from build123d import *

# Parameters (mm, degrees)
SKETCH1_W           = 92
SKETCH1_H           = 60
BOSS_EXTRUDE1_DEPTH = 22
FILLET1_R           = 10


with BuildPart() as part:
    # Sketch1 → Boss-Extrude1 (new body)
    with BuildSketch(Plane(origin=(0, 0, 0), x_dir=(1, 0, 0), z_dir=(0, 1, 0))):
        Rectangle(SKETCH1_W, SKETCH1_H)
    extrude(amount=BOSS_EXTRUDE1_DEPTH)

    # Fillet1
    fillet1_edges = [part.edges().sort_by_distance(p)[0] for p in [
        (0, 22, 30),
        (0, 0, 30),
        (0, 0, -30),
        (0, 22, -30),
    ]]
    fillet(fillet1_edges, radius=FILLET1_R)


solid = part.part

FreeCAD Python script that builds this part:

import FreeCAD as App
import Part
import Sketcher


def edges_at(feature, points):
    """Names of the edges that pass closest to the given points."""
    edges = feature.Shape.Edges
    near = lambda p: min(range(len(edges)), key=lambda i: edges[i].distToShape(Part.Vertex(*p))[0])
    return sorted({f"Edge{near(p) + 1}" for p in points})

doc = App.newDocument("Part")
params = doc.addObject("Spreadsheet::Sheet", "Params")
for row, (alias, value) in enumerate([
    ("sketch1_width", "92 mm"),
    ("sketch1_height", "60 mm"),
    ("pad1_length", "22 mm"),
    ("fillet_radius", "10 mm"),
], start=1):
    params.set(f"A{row}", alias)
    params.set(f"B{row}", "=" + value)
    params.setAlias(f"B{row}", alias)

body = doc.addObject("PartDesign::Body", "Body")

# Sketch on XZ plane
sketch1 = doc.addObject("Sketcher::SketchObject", "Sketch")
body.addObject(sketch1)
sketch1.AttachmentSupport = (doc.XZ_Plane, [""])
sketch1.MapMode = "FlatFace"
sketch1.addGeometry([
    Part.LineSegment(App.Vector(-46, -30, 0), App.Vector(-46, 30, 0)),
    Part.LineSegment(App.Vector(-46, 30, 0), App.Vector(46, 30, 0)),
    Part.LineSegment(App.Vector(46, 30, 0), App.Vector(46, -30, 0)),
    Part.LineSegment(App.Vector(46, -30, 0), App.Vector(-46, -30, 0)),
], False)
sketch1.addConstraint([
    Sketcher.Constraint("Coincident", 0, 2, 1, 1),
    Sketcher.Constraint("Coincident", 1, 2, 2, 1),
    Sketcher.Constraint("Coincident", 2, 2, 3, 1),
    Sketcher.Constraint("Coincident", 3, 2, 0, 1),
    Sketcher.Constraint("Vertical", 0),
    Sketcher.Constraint("Horizontal", 1),
    Sketcher.Constraint("Vertical", 2),
    Sketcher.Constraint("Horizontal", 3),
    Sketcher.Constraint("Symmetric", 0, 2, 2, 2, -1, 1),
    Sketcher.Constraint("DistanceX", 1, 1, 1, 2, 92.0),
    Sketcher.Constraint("DistanceY", 0, 1, 0, 2, 60.0),
])
sketch1.setExpression("Constraints[9]", "Params.sketch1_width")
sketch1.setExpression("Constraints[10]", "Params.sketch1_height")
pad1 = doc.addObject("PartDesign::Pad", "Pad")
body.addObject(pad1)
pad1.Profile = sketch1
pad1.setExpression("Length", "Params.pad1_length")
pad1.Reversed = True
doc.recompute()

fillet = doc.addObject("PartDesign::Fillet", "Fillet")
body.addObject(fillet)
fillet.Base = (pad1, edges_at(pad1, [
    (0, 22, 30),
    (0, 0, 30),
    (0, 0, -30),
    (0, 22, -30),
]))
fillet.setExpression("Radius", "Params.fillet_radius")

doc.recompute()
